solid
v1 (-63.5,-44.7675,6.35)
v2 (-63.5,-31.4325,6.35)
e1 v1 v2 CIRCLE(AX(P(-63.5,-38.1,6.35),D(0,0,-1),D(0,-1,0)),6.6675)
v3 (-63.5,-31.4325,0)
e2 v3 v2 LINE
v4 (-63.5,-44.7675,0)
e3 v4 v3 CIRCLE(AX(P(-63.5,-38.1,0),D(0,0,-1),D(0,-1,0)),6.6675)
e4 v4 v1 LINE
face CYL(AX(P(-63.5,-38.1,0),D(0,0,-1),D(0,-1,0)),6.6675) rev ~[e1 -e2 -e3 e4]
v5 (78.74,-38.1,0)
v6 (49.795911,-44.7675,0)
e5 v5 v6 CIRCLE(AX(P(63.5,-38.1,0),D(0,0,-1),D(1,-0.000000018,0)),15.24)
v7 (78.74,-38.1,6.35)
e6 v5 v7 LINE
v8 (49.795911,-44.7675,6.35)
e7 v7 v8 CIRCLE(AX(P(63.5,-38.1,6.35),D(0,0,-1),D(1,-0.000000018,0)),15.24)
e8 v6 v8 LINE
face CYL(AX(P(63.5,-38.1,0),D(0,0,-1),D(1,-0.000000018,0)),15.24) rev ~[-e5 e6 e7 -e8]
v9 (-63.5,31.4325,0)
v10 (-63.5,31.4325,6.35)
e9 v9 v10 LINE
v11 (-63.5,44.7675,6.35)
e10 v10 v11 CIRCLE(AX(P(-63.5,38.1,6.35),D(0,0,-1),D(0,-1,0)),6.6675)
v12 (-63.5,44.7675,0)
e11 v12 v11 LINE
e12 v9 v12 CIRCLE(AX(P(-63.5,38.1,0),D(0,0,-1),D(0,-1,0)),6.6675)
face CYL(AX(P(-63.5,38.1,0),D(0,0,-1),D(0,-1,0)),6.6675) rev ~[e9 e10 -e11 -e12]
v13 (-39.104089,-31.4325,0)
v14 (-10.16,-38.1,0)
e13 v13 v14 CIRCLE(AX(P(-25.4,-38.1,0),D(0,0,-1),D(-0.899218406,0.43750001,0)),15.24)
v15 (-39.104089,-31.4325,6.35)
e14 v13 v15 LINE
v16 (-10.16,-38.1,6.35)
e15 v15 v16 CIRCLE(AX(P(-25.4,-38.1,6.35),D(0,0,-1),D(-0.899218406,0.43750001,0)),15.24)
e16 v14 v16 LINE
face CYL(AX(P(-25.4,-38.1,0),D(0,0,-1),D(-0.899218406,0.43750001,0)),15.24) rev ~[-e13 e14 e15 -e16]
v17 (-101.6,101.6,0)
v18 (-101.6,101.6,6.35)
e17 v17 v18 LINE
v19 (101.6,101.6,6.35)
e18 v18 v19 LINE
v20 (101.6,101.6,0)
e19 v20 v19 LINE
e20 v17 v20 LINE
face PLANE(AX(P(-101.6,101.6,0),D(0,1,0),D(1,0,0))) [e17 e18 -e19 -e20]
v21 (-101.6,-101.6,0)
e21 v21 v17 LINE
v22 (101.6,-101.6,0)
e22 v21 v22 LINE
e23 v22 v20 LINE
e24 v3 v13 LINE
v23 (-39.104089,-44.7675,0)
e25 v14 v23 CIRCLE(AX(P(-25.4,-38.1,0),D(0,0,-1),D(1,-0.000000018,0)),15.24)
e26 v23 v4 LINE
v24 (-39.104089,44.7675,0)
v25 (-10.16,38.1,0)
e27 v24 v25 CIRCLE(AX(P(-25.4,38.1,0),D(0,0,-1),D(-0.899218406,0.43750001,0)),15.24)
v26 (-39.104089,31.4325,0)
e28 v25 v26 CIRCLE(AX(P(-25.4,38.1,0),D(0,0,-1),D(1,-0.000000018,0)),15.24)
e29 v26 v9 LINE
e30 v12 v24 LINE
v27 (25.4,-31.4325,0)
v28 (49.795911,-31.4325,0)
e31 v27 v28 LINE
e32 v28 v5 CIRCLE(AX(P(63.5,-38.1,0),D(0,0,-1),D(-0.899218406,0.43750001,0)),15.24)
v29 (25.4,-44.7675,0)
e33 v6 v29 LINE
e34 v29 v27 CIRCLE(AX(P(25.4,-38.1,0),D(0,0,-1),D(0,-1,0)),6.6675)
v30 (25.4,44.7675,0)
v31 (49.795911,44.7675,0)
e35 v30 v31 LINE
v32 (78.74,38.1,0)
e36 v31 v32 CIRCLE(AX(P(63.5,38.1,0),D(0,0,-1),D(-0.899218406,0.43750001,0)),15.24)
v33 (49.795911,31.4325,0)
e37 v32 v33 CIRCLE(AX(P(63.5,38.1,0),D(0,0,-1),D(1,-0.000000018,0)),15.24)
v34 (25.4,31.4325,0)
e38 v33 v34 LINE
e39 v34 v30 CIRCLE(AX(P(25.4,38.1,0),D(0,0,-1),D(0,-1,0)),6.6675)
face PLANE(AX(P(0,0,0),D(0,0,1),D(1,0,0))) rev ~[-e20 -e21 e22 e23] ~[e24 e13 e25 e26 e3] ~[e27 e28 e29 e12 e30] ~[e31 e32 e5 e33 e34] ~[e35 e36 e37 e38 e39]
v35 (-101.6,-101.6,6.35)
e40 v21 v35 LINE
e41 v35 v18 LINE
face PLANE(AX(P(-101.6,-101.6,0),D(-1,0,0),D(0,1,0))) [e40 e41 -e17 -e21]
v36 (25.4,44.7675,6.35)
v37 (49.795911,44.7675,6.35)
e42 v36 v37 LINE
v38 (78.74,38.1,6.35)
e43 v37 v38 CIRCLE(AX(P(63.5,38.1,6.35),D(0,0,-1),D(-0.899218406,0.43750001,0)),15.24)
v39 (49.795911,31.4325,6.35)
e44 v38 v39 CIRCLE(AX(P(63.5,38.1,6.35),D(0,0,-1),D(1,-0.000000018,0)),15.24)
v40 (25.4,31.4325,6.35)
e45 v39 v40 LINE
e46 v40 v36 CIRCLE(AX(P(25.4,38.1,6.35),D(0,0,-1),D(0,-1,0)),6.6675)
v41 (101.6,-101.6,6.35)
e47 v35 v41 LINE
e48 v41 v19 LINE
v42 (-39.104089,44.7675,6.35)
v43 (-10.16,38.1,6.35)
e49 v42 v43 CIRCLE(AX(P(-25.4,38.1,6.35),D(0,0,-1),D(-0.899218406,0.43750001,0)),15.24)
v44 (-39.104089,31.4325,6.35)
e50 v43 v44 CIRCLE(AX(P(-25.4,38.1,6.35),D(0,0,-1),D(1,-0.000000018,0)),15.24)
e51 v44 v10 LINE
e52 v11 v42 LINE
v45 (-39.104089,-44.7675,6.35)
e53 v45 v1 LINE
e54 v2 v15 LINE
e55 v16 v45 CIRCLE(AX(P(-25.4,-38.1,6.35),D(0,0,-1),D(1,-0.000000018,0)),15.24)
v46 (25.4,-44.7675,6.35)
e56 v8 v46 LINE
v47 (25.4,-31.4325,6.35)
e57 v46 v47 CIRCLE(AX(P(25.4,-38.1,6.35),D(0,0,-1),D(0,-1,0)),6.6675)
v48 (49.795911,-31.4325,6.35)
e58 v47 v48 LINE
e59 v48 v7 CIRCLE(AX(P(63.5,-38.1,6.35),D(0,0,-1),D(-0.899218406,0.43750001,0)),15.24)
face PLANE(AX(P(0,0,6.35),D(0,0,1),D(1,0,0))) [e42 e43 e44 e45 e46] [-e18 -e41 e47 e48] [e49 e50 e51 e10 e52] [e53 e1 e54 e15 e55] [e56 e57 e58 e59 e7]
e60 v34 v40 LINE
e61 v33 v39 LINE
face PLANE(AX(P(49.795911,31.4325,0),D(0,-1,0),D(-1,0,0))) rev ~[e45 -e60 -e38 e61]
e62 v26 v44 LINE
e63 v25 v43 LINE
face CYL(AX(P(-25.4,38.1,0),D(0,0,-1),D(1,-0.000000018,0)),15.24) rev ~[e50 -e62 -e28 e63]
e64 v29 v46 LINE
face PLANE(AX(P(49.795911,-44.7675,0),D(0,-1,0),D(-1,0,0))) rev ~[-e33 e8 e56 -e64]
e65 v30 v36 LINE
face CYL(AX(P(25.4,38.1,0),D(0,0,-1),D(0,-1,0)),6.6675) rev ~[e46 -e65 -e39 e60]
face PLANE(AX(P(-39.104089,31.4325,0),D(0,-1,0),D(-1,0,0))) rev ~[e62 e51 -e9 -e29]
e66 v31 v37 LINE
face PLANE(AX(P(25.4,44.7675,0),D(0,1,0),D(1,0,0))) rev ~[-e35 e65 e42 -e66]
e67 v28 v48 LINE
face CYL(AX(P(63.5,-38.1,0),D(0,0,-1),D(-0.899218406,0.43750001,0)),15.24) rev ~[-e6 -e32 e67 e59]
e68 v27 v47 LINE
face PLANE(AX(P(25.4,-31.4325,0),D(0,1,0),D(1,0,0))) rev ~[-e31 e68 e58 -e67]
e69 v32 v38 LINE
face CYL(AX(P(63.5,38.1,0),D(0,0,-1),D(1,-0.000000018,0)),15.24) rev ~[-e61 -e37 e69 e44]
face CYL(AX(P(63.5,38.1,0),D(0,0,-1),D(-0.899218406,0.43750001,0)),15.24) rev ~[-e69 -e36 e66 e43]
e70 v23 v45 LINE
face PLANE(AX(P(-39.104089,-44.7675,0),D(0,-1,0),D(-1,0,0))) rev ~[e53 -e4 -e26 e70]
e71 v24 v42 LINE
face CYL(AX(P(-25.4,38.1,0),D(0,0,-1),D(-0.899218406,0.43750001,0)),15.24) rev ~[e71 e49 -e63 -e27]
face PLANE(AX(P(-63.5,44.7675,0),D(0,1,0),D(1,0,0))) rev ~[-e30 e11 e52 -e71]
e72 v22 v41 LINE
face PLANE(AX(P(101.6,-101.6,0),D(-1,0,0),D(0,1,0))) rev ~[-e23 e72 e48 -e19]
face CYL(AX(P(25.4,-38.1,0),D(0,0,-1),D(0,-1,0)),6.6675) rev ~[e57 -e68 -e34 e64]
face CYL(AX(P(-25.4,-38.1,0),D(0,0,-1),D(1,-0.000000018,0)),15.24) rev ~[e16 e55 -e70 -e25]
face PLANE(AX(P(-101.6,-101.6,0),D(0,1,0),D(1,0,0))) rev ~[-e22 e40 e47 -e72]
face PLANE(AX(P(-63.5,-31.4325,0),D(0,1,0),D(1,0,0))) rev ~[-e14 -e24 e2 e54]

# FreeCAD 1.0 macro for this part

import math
import FreeCAD as App
import Part
import Sketcher
Q = App.Units.Quantity


def add_polygon(sketch, points):
    """Adds a closed chain of lines whose ends are joined by coincident constraints."""
    first, n = sketch.GeometryCount, len(points)
    for a, b in zip(points, points[1:] + points[:1]):
        sketch.addGeometry(Part.LineSegment(App.Vector(*a, 0), App.Vector(*b, 0)), False)
    for i in range(n):
        sketch.addConstraint(Sketcher.Constraint("Coincident", first + i, 2, first + (i + 1) % n, 1))

doc = App.newDocument("Part")
body = doc.addObject("PartDesign::Body", "Body")

# Sketch on XY plane
sketch1 = doc.addObject("Sketcher::SketchObject", "Sketch")
body.addObject(sketch1)
sketch1.AttachmentSupport = (doc.XY_Plane, [""])
sketch1.MapMode = "FlatFace"
add_polygon(sketch1, [(-102, 102), (-102, -102), (102, -102), (102, 102)])  # lines 0-3
sketch1.addGeometry(Part.ArcOfCircle(Part.Circle(App.Vector(-25, -38, 0), App.Vector(0, 0, 1), 15), math.radians(-154), math.radians(0)), False)  # 4
sketch1.addGeometry(Part.LineSegment(App.Vector(-39, -45, 0), App.Vector(-64, -45, 0)), False)  # 5
sketch1.addGeometry(Part.ArcOfCircle(Part.Circle(App.Vector(-64, -38, 0), App.Vector(0, 0, 1), 7), math.radians(90), math.radians(270)), False)  # 6
sketch1.addGeometry(Part.LineSegment(App.Vector(-64, -31, 0), App.Vector(-39, -31, 0)), False)  # 7
sketch1.addGeometry(Part.ArcOfCircle(Part.Circle(App.Vector(-25, -38, 0), App.Vector(0, 0, 1), 15), math.radians(0), math.radians(154)), False)  # 8
sketch1.addGeometry(Part.LineSegment(App.Vector(50, -45, 0), App.Vector(25, -45, 0)), False)  # 9
sketch1.addGeometry(Part.ArcOfCircle(Part.Circle(App.Vector(25, -38, 0), App.Vector(0, 0, 1), 7), math.radians(90), math.radians(270)), False)  # 10
sketch1.addGeometry(Part.LineSegment(App.Vector(25, -31, 0), App.Vector(50, -31, 0)), False)  # 11
sketch1.addGeometry(Part.ArcOfCircle(Part.Circle(App.Vector(63, -38, 0), App.Vector(0, 0, 1), 15), math.radians(0), math.radians(154)), False)  # 12
sketch1.addGeometry(Part.ArcOfCircle(Part.Circle(App.Vector(63, -38, 0), App.Vector(0, 0, 1), 15), math.radians(-154), math.radians(0)), False)  # 13
sketch1.addGeometry(Part.LineSegment(App.Vector(-64, 45, 0), App.Vector(-39, 45, 0)), False)  # 14
sketch1.addGeometry(Part.ArcOfCircle(Part.Circle(App.Vector(-25, 38, 0), App.Vector(0, 0, 1), 15), math.radians(0), math.radians(154)), False)  # 15
sketch1.addGeometry(Part.ArcOfCircle(Part.Circle(App.Vector(-25, 38, 0), App.Vector(0, 0, 1), 15), math.radians(-154), math.radians(0)), False)  # 16
sketch1.addGeometry(Part.LineSegment(App.Vector(-39, 31, 0), App.Vector(-64, 31, 0)), False)  # 17
sketch1.addGeometry(Part.ArcOfCircle(Part.Circle(App.Vector(-64, 38, 0), App.Vector(0, 0, 1), 7), math.radians(90), math.radians(270)), False)  # 18
sketch1.addGeometry(Part.LineSegment(App.Vector(25, 45, 0), App.Vector(50, 45, 0)), False)  # 19
sketch1.addGeometry(Part.ArcOfCircle(Part.Circle(App.Vector(63, 38, 0), App.Vector(0, 0, 1), 15), math.radians(0), math.radians(154)), False)  # 20
sketch1.addGeometry(Part.ArcOfCircle(Part.Circle(App.Vector(63, 38, 0), App.Vector(0, 0, 1), 15), math.radians(-154), math.radians(0)), False)  # 21
sketch1.addGeometry(Part.LineSegment(App.Vector(50, 31, 0), App.Vector(25, 31, 0)), False)  # 22
sketch1.addGeometry(Part.ArcOfCircle(Part.Circle(App.Vector(25, 38, 0), App.Vector(0, 0, 1), 7), math.radians(90), math.radians(270)), False)  # 23
sketch1.addConstraint([
    Sketcher.Constraint("Coincident", 4, 1, 5, 1),
    Sketcher.Constraint("Tangent", 5, 2, 6, 2),
    Sketcher.Constraint("Tangent", 6, 1, 7, 1),
    Sketcher.Constraint("Coincident", 7, 2, 8, 2),
    Sketcher.Constraint("Tangent", 8, 1, 4, 2),
    Sketcher.Constraint("Tangent", 9, 2, 10, 2),
    Sketcher.Constraint("Tangent", 10, 1, 11, 1),
    Sketcher.Constraint("Coincident", 11, 2, 12, 2),
    Sketcher.Constraint("Tangent", 12, 1, 13, 2),
    Sketcher.Constraint("Coincident", 13, 1, 9, 1),
    Sketcher.Constraint("Coincident", 14, 2, 15, 2),
    Sketcher.Constraint("Tangent", 15, 1, 16, 2),
    Sketcher.Constraint("Coincident", 16, 1, 17, 1),
    Sketcher.Constraint("Tangent", 17, 2, 18, 2),
    Sketcher.Constraint("Tangent", 18, 1, 14, 1),
    Sketcher.Constraint("Coincident", 19, 2, 20, 2),
    Sketcher.Constraint("Tangent", 20, 1, 21, 2),
    Sketcher.Constraint("Coincident", 21, 1, 22, 1),
    Sketcher.Constraint("Tangent", 22, 2, 23, 2),
    Sketcher.Constraint("Tangent", 23, 1, 19, 1),
    Sketcher.Constraint("Vertical", 0),
    Sketcher.Constraint("Horizontal", 1),
    Sketcher.Constraint("Vertical", 2),
    Sketcher.Constraint("Horizontal", 3),
    Sketcher.Constraint("Horizontal", 5),
    Sketcher.Constraint("Horizontal", 7),
    Sketcher.Constraint("Horizontal", 9),
    Sketcher.Constraint("Horizontal", 11),
    Sketcher.Constraint("Horizontal", 14),
    Sketcher.Constraint("Horizontal", 17),
    Sketcher.Constraint("Horizontal", 19),
    Sketcher.Constraint("Horizontal", 22),
    Sketcher.Constraint("Equal", 4, 8),
    Sketcher.Constraint("Equal", 6, 10),
    Sketcher.Constraint("Equal", 8, 12),
    Sketcher.Constraint("Equal", 12, 13),
    Sketcher.Constraint("Equal", 13, 15),
    Sketcher.Constraint("Equal", 15, 16),
    Sketcher.Constraint("Equal", 10, 18),
    Sketcher.Constraint("Equal", 16, 20),
    Sketcher.Constraint("Equal", 20, 21),
    Sketcher.Constraint("Equal", 18, 23),
    Sketcher.Constraint("Symmetric", 10, 3, 15, 3, -1, 1),
    Sketcher.Constraint("Symmetric", 12, 3, 18, 3, -1, 1),
    Sketcher.Constraint("Symmetric", 6, 3, 20, 3, -1, 1),
    Sketcher.Constraint("Symmetric", 4, 3, 23, 3, -1, 1),
    Sketcher.Constraint("Symmetric", 0, 2, 2, 2, -1, 1),
    Sketcher.Constraint("Symmetric", 4, 3, 10, 3, -2),
    Sketcher.Constraint("Symmetric", 6, 3, 12, 3, -2),
    Sketcher.Constraint("Horizontal", 4, 3, 6, 3),
    Sketcher.Constraint("Horizontal", 13, 3, 8, 1),
    Sketcher.Constraint("Horizontal", 8, 1, 12, 1),
    Sketcher.Constraint("Horizontal", 23, 3, 15, 1),
    Sketcher.Constraint("Horizontal", 15, 1, 20, 1),
    Sketcher.Constraint("Equal", 3, 0),
    Sketcher.Constraint("Radius", 4, Q("0.6 in")),
    Sketcher.Constraint("DistanceX", 1, 1, 1, 2, Q("8 in")),
    Sketcher.Constraint("DistanceX", 4, 3, -1, 1, Q("1 in")),
    Sketcher.Constraint("DistanceX", 6, 3, 12, 3, Q("5 in")),
    Sketcher.Constraint("DistanceY", 4, 3, 15, 3, Q("3 in")),
    Sketcher.Constraint("Radius", 6, Q("0.2625 in")),
])
pad1 = doc.addObject("PartDesign::Pad", "Pad")
body.addObject(pad1)
pad1.Profile = sketch1
pad1.Length = Q("0.25 in")

doc.recompute()
